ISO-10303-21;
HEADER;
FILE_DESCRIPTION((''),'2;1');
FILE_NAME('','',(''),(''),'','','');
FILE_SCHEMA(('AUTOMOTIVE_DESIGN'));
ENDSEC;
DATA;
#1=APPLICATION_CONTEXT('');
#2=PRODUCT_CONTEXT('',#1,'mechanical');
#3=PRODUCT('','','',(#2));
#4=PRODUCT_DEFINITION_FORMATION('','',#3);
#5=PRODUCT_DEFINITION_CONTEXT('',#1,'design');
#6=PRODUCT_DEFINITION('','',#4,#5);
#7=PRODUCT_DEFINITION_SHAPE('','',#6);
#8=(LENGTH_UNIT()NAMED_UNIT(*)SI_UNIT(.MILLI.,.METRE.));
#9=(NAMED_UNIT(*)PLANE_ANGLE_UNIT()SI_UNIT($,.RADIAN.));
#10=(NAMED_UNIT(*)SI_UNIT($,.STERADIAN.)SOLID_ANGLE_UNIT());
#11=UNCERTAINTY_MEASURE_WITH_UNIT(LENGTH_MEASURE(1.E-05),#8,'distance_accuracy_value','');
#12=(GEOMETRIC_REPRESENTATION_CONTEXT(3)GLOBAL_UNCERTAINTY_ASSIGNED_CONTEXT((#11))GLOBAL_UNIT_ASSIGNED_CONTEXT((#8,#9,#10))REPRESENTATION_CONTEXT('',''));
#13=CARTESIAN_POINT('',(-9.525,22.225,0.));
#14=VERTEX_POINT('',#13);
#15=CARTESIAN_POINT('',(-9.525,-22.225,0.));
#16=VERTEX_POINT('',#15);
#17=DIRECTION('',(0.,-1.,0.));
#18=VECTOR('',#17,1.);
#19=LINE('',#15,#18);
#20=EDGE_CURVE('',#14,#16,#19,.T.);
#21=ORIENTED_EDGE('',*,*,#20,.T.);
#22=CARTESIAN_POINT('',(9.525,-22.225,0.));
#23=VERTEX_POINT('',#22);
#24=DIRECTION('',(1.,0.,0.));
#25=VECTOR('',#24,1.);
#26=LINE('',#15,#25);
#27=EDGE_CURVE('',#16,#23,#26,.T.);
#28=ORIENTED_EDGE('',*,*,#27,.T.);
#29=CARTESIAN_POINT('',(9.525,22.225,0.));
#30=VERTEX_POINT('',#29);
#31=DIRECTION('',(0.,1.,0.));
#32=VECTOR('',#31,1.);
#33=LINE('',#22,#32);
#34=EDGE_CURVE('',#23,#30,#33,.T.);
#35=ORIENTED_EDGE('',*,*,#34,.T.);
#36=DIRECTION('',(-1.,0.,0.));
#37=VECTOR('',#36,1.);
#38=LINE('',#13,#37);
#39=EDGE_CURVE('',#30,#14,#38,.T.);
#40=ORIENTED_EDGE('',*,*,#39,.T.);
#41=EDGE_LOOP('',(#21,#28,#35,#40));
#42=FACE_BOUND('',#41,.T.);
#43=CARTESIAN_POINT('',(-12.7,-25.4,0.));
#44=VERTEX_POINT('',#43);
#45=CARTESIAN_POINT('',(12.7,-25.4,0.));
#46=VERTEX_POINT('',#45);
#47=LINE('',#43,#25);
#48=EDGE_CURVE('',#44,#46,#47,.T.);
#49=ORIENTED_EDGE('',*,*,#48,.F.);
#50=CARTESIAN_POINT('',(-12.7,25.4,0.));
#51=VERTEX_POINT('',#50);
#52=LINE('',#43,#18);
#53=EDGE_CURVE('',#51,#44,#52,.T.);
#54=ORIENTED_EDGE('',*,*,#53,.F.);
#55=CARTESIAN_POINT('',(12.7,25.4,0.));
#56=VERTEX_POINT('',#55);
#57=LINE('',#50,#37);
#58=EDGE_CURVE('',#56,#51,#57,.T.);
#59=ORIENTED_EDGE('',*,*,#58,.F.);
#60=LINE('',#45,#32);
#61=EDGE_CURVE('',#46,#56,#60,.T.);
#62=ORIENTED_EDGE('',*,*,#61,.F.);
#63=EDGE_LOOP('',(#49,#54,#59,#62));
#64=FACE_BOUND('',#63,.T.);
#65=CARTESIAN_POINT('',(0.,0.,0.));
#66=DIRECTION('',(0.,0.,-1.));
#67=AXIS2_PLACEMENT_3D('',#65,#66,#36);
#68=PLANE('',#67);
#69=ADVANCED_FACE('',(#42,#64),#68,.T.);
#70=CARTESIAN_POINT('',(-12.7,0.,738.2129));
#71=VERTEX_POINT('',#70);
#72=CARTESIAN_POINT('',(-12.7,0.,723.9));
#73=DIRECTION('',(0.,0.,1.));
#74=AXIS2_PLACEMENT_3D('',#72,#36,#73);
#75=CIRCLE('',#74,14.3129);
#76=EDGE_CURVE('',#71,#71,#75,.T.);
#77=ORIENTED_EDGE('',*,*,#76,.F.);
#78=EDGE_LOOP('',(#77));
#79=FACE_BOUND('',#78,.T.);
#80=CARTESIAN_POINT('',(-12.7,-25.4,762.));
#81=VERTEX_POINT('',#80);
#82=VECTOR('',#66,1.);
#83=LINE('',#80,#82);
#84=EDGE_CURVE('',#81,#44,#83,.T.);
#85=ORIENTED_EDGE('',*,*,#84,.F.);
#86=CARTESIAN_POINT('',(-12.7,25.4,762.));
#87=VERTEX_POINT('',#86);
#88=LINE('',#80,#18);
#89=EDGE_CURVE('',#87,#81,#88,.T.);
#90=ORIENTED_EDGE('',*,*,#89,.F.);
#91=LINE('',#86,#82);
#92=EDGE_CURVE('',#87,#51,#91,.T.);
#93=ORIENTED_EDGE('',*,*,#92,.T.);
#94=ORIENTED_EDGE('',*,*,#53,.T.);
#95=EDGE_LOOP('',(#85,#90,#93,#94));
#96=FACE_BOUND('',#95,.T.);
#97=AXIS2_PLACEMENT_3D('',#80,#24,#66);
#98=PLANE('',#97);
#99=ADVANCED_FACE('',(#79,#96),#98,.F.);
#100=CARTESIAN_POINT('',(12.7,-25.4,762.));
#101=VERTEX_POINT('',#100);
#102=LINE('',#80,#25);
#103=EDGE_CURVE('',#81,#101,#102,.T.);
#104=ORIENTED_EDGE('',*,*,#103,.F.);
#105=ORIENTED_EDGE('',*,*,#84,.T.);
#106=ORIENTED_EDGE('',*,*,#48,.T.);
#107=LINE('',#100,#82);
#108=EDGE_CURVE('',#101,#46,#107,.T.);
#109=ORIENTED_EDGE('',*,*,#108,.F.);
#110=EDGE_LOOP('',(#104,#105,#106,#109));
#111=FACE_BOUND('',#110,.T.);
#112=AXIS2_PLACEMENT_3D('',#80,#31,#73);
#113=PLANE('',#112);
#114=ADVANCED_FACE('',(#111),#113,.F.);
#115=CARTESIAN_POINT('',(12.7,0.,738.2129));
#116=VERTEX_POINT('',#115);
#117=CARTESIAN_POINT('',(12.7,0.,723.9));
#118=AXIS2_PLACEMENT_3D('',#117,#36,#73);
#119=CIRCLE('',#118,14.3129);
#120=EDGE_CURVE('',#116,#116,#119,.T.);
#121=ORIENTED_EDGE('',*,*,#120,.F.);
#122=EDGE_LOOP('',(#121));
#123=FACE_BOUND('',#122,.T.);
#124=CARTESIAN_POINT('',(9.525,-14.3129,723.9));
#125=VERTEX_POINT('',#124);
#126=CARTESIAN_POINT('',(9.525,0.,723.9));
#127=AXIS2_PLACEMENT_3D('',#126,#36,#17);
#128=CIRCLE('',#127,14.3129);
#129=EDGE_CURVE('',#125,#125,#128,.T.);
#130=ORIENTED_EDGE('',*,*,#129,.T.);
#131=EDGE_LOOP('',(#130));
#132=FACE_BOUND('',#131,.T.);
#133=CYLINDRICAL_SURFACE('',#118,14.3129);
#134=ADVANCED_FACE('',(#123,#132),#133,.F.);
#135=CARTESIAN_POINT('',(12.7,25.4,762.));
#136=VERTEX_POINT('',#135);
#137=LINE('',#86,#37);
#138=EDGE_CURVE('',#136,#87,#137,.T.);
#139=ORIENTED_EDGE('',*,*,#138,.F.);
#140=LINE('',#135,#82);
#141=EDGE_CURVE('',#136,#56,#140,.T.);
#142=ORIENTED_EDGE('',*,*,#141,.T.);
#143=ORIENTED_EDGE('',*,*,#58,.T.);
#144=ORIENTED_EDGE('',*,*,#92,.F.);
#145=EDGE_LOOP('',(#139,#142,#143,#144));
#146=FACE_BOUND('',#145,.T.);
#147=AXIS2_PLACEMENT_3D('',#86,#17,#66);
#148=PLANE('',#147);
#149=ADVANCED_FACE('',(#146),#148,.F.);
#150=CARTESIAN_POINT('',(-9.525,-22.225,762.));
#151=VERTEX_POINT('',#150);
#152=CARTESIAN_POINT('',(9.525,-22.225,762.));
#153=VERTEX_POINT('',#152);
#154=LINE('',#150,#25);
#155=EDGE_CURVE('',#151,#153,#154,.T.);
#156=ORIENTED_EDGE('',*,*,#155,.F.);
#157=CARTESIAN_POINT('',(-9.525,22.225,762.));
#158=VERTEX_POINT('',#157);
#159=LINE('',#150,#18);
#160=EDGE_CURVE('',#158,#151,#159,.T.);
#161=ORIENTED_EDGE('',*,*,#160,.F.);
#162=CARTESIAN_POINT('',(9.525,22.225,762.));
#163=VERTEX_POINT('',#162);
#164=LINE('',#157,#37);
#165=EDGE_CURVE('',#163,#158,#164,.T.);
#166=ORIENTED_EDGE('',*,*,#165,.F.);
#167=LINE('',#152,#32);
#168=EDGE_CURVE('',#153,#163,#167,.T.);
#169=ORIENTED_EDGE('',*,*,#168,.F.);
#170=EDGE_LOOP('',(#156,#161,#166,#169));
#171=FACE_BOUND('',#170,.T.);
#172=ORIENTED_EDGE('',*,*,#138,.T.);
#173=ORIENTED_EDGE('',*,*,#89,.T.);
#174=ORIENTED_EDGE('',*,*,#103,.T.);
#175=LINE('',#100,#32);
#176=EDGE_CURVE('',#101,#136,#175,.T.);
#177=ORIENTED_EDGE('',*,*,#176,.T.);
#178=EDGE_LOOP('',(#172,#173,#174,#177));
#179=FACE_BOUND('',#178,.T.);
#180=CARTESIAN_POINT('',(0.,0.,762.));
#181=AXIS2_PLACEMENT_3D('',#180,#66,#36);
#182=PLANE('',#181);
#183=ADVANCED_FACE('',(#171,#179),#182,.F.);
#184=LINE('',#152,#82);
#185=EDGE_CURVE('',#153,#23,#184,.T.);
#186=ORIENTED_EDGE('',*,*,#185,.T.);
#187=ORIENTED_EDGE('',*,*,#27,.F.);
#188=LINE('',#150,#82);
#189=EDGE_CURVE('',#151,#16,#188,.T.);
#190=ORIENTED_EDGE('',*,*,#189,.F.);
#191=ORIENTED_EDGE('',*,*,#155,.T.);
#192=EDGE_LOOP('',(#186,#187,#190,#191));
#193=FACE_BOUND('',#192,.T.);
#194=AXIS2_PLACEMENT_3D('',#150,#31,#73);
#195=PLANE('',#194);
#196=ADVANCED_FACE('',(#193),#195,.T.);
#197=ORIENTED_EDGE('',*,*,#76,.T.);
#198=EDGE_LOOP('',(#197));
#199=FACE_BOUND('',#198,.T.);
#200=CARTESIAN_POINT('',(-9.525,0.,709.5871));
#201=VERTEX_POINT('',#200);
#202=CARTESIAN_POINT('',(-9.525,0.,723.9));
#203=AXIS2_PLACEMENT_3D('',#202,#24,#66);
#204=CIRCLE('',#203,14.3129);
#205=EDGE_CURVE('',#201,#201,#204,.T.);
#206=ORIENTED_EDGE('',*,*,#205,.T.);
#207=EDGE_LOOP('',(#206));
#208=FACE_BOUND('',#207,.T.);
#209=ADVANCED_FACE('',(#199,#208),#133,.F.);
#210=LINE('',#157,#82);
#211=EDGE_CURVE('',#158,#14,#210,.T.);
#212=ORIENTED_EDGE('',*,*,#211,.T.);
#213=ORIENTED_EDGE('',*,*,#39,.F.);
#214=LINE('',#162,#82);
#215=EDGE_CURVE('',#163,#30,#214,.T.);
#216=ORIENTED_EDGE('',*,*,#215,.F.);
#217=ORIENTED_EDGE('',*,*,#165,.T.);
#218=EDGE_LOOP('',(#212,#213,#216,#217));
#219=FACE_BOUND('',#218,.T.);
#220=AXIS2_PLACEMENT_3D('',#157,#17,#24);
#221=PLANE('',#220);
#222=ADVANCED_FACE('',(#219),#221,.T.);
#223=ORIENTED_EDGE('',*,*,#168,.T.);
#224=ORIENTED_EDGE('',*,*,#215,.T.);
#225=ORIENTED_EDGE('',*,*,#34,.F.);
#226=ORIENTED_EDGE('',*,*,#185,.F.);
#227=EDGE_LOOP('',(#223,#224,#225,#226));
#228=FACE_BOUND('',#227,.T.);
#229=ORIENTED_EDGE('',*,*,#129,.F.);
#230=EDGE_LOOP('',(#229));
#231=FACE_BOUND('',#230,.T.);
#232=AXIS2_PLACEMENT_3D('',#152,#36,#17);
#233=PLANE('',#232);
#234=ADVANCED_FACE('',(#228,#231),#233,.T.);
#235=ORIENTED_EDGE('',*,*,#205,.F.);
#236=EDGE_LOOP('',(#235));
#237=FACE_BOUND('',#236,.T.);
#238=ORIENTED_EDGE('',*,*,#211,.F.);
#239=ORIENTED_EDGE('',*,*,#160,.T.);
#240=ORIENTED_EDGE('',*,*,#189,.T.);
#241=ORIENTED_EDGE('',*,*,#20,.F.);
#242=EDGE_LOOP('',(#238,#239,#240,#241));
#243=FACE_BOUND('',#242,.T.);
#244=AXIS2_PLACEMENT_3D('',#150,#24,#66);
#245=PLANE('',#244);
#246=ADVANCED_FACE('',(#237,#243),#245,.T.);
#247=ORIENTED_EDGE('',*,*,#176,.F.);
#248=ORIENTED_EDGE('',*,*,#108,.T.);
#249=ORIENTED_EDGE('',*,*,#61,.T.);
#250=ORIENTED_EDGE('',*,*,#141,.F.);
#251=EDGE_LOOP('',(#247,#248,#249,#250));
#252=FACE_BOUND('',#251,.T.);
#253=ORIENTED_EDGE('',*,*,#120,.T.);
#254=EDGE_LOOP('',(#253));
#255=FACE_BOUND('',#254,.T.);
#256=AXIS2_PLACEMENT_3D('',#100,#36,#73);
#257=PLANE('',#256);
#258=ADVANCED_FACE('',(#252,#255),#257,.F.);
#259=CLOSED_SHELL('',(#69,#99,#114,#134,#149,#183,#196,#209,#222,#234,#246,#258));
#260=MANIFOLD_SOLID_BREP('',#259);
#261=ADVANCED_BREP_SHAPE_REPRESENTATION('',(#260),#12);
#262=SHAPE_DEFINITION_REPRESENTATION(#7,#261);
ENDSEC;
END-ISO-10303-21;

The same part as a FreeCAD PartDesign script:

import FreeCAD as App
import Part
import Sketcher
from FreeCAD import Vector
Q = App.Units.Quantity


def add_polygon(sketch, points):
    """Adds a closed chain of lines whose ends are joined by coincident constraints."""
    first, n = sketch.GeometryCount, len(points)
    for a, b in zip(points, points[1:] + points[:1]):
        sketch.addGeometry(Part.LineSegment(App.Vector(*a, 0), App.Vector(*b, 0)), False)
    for i in range(n):
        sketch.addConstraint(Sketcher.Constraint("Coincident", first + i, 2, first + (i + 1) % n, 1))

doc = App.newDocument("Part")
params = doc.addObject("Spreadsheet::Sheet", "Params")
for row, (alias, value) in enumerate([
    ("sketch1_width", "1 in"),
    ("sketch1_height", "2 in"),
    ("sketch1_width2", "0.75 in"),
    ("sketch1_height2", "1.75 in"),
    ("pad1_length", "30 in"),
    ("sketch2_diameter", "1.127 in"),
], start=1):
    params.set(f"A{row}", alias)
    params.set(f"B{row}", "=" + value)
    params.setAlias(f"B{row}", alias)

body = doc.addObject("PartDesign::Body", "Body")

# Sketch on XY plane
sketch1 = body.newObject("Sketcher::SketchObject", "Sketch")
sketch1.AttachmentSupport = (doc.getObject("XY_Plane"), [""])
sketch1.MapMode = "FlatFace"
add_polygon(sketch1, [(-12.7, 25.4), (-12.7, -25.4), (12.7, -25.4), (12.7, 25.4)])  # lines 0-3
add_polygon(sketch1, [(9.525, -22.225), (-9.525, -22.225), (-9.525, 22.225), (9.525, 22.225)])  # lines 4-7
sketch1.addConstraint(Sketcher.Constraint("Vertical", 0))
sketch1.addConstraint(Sketcher.Constraint("Horizontal", 1))
sketch1.addConstraint(Sketcher.Constraint("Vertical", 2))
sketch1.addConstraint(Sketcher.Constraint("Horizontal", 3))
sketch1.addConstraint(Sketcher.Constraint("Horizontal", 4))
sketch1.addConstraint(Sketcher.Constraint("Vertical", 5))
sketch1.addConstraint(Sketcher.Constraint("Horizontal", 6))
sketch1.addConstraint(Sketcher.Constraint("Vertical", 7))
sketch1.addConstraint(Sketcher.Constraint("Symmetric", 0, 2, 2, 2, -1, 1))
sketch1.addConstraint(Sketcher.Constraint("Symmetric", 4, 2, 6, 2, -1, 1))
sketch1.addConstraint(Sketcher.Constraint("DistanceX", 1, 1, 1, 2, Q("1 in")))
sketch1.addConstraint(Sketcher.Constraint("DistanceY", 0, 2, 0, 1, Q("2 in")))
sketch1.addConstraint(Sketcher.Constraint("DistanceX", 4, 2, 4, 1, Q("0.75 in")))
sketch1.addConstraint(Sketcher.Constraint("DistanceY", 5, 1, 5, 2, Q("1.75 in")))
sketch1.setExpression("Constraints[18]", "Params.sketch1_width")
sketch1.setExpression("Constraints[19]", "Params.sketch1_height")
sketch1.setExpression("Constraints[20]", "Params.sketch1_width2")
sketch1.setExpression("Constraints[21]", "Params.sketch1_height2")
pad1 = body.newObject("PartDesign::Pad", "Pad")
pad1.Profile = sketch1
pad1.setExpression("Length", "Params.pad1_length")

# Sketch on YZ plane
sketch2 = body.newObject("Sketcher::SketchObject", "Sketch001")
sketch2.AttachmentSupport = (doc.getObject("YZ_Plane"), [""])
sketch2.MapMode = "FlatFace"
sketch2.AttachmentOffset = App.Placement(Vector(0, 0, -0.5 * 25.4), App.Rotation())
sketch2.addGeometry(Part.Circle(Vector(0, 723.9, 0), Vector(0, 0, 1), 14.3129), False)
sketch2.addConstraint(Sketcher.Constraint("PointOnObject", 0, 3, -2))
sketch2.addConstraint(Sketcher.Constraint("Diameter", 0, Q("1.127 in")))
sketch2.addConstraint(Sketcher.Constraint("DistanceY", -1, 1, 0, 3, Q("28.5 in")))
sketch2.setExpression("Constraints[1]", "Params.sketch2_diameter")
pocket1 = body.newObject("PartDesign::Pocket", "Pocket")
pocket1.Profile = sketch2
pocket1.Type = "ThroughAll"
pocket1.Reversed = True

doc.recompute()
